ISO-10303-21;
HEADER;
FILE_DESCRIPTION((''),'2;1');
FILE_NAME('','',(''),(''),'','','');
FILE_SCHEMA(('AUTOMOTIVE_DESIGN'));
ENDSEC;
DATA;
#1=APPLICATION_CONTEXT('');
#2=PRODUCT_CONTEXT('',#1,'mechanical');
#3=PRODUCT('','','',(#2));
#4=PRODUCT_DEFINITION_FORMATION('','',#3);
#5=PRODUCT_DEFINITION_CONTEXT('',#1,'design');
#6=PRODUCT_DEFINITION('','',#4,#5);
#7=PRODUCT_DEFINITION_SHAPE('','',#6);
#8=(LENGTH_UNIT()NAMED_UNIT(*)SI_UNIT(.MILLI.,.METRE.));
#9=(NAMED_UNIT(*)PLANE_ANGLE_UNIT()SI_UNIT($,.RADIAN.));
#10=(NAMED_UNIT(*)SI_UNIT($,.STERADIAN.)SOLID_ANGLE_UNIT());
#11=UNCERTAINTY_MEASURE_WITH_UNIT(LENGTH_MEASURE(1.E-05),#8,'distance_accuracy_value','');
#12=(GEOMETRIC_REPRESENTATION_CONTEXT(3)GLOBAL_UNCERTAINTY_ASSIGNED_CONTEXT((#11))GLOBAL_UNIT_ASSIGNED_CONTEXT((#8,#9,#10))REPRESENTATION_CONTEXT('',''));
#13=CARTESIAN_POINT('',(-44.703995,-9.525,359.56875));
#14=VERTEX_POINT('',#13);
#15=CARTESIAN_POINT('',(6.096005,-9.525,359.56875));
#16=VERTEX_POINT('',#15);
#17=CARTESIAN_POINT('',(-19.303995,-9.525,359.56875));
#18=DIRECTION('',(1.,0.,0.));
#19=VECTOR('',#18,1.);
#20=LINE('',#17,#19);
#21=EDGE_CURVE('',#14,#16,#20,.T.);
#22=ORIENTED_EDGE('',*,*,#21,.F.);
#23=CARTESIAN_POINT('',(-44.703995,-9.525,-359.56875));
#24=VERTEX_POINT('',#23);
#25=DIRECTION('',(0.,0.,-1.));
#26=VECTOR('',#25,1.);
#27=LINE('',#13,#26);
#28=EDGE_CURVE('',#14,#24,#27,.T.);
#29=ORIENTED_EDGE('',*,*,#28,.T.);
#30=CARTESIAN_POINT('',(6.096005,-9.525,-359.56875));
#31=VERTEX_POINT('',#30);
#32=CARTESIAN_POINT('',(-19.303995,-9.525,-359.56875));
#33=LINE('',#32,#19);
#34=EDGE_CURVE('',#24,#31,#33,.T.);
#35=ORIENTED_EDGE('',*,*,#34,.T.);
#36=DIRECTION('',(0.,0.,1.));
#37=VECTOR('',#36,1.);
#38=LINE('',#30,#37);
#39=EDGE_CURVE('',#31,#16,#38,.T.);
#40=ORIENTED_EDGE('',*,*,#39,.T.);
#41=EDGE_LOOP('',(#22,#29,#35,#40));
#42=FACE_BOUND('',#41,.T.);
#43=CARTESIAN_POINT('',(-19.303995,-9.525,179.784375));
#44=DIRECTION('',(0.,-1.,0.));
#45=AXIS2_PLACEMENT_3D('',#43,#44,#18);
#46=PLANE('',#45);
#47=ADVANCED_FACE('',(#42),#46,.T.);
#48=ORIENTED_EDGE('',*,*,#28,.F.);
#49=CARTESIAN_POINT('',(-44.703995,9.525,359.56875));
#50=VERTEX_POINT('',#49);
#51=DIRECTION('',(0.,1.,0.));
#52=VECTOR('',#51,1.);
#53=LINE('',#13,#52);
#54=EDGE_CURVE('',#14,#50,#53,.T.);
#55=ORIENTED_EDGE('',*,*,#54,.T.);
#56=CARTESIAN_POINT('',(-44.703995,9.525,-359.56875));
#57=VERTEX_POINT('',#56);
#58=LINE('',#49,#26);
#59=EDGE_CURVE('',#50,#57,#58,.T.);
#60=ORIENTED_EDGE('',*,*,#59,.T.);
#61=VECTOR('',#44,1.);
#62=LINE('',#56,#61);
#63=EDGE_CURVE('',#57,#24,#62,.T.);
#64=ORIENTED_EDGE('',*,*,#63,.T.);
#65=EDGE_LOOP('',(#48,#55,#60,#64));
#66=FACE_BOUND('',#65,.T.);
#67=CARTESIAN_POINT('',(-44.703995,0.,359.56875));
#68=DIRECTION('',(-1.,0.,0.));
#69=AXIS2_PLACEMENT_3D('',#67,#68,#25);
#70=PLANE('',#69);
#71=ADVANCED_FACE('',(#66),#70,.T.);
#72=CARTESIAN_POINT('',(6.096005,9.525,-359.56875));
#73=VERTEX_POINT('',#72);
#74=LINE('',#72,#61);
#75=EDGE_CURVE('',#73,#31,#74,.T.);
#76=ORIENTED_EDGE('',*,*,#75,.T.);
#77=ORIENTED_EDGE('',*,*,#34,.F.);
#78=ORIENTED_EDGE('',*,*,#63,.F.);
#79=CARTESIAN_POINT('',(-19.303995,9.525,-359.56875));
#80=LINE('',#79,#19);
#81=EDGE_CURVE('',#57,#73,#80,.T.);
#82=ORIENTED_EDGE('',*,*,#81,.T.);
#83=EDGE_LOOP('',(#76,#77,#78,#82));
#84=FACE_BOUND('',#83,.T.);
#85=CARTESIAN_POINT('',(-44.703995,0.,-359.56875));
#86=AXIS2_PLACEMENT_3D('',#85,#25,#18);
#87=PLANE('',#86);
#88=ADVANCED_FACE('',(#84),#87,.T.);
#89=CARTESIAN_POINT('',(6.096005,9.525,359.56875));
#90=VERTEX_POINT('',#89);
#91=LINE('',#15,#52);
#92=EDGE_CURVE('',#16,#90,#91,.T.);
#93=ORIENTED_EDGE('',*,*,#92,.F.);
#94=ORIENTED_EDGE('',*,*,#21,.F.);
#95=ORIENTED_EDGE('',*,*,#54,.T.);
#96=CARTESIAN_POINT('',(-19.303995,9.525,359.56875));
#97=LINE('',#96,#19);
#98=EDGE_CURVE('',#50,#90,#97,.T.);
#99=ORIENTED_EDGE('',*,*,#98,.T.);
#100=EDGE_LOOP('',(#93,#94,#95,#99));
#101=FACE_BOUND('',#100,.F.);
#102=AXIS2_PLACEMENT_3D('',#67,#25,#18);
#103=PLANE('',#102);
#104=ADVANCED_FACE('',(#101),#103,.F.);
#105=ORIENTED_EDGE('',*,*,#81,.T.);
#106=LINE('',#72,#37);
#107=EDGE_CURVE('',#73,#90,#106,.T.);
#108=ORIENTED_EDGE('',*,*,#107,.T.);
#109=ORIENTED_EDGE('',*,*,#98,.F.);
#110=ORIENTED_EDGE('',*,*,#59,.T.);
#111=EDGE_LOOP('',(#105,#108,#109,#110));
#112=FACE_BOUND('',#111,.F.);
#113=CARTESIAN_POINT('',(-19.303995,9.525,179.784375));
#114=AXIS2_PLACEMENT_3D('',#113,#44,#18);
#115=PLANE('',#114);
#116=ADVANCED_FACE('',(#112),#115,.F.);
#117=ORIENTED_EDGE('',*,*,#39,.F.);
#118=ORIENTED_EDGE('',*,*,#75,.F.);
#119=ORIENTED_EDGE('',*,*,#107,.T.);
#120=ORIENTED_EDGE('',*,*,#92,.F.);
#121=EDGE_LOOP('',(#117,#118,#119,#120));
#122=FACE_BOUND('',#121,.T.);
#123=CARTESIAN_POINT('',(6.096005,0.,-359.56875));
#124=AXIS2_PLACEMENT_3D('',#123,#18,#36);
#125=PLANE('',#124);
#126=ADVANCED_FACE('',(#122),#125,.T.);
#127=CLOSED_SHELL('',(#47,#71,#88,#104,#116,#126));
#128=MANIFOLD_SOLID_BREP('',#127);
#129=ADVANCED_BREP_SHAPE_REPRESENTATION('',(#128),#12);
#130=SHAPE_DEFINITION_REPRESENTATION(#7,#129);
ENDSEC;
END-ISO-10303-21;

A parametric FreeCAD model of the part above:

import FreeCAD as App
import Part
import Sketcher
Q = App.Units.Quantity


def add_polygon(sketch, points):
    """Adds a closed chain of lines whose ends are joined by coincident constraints."""
    first, n = sketch.GeometryCount, len(points)
    for a, b in zip(points, points[1:] + points[:1]):
        sketch.addGeometry(Part.LineSegment(App.Vector(*a, 0), App.Vector(*b, 0)), False)
    for i in range(n):
        sketch.addConstraint(Sketcher.Constraint("Coincident", first + i, 2, first + (i + 1) % n, 1))

doc = App.newDocument("Part")
params = doc.addObject("Spreadsheet::Sheet", "Params")
for row, (alias, value) in enumerate([
    ("sketch1_width", "2 in"),
    ("sketch1_height", "28.3125 in"),
    ("pad1_length", "0.75 in"),
], start=1):
    params.set(f"A{row}", alias)
    params.set(f"B{row}", "=" + value)
    params.setAlias(f"B{row}", alias)

body = doc.addObject("PartDesign::Body", "Body")

# Sketch on XZ plane
sketch1 = doc.addObject("Sketcher::SketchObject", "Sketch")
body.addObject(sketch1)
sketch1.AttachmentSupport = (doc.XZ_Plane, [""])
sketch1.MapMode = "FlatFace"
add_polygon(sketch1, [(-45, 360), (-45, -360), (6, -360), (6, 360)])  # lines 0-3
sketch1.addConstraint([
    Sketcher.Constraint("Vertical", 0),
    Sketcher.Constraint("Horizontal", 1),
    Sketcher.Constraint("Vertical", 2),
    Sketcher.Constraint("Horizontal", 3),
    Sketcher.Constraint("DistanceX", 1, 1, 1, 2, Q("2 in")),
    Sketcher.Constraint("DistanceY", 0, 2, 0, 1, Q("28.3125 in")),
    Sketcher.Constraint("DistanceX", 0, 2, -1, 1, Q("1.7599998 in")),
    Sketcher.Constraint("DistanceY", 0, 2, -1, 1, Q("14.15625 in")),
])
sketch1.setExpression("Constraints[8]", "Params.sketch1_width")
sketch1.setExpression("Constraints[9]", "Params.sketch1_height")
pad1 = doc.addObject("PartDesign::Pad", "Pad")
body.addObject(pad1)
pad1.Profile = sketch1
pad1.setExpression("Length", "Params.pad1_length")
pad1.Midplane = True

doc.recompute()
